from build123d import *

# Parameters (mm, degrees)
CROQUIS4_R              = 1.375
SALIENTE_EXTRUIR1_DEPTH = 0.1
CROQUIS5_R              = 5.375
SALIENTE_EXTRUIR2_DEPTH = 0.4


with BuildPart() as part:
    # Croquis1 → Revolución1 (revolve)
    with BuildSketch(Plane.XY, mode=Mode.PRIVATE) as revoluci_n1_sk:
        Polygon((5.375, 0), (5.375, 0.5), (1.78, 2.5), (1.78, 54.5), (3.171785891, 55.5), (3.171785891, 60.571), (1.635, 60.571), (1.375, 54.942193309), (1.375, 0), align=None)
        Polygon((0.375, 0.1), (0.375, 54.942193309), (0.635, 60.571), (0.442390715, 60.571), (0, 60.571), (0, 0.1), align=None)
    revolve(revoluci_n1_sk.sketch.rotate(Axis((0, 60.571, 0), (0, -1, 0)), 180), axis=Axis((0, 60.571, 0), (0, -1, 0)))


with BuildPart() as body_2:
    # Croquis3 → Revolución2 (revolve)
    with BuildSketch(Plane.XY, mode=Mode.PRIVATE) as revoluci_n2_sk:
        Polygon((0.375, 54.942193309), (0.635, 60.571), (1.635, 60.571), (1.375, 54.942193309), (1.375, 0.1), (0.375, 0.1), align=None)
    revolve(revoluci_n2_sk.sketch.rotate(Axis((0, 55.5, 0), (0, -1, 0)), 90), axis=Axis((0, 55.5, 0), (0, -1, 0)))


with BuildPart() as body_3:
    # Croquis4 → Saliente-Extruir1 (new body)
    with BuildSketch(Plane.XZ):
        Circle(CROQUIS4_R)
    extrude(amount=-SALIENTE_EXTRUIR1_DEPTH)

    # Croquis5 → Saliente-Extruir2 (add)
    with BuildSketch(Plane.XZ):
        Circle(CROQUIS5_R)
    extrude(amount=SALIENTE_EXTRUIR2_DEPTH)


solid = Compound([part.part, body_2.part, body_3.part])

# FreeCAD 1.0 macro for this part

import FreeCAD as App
import Part
import Sketcher
Q = App.Units.Quantity

doc = App.newDocument("Part")
body = doc.addObject("PartDesign::Body", "Body")
body.AllowCompound = True

# Sketch on XY plane
sketch1 = body.newObject("Sketcher::SketchObject", "Sketch")
sketch1.AttachmentSupport = (doc.getObject("XY_Plane"), [""])
sketch1.MapMode = "FlatFace"
sketch1.addGeometry([
    Part.LineSegment(App.Vector(5.375, 0, 0), App.Vector(5.375, 0.5, 0)),  # 0
    Part.LineSegment(App.Vector(5.375, 0.5, 0), App.Vector(1.78, 2.5, 0)),  # 1
    Part.LineSegment(App.Vector(1.78, 2.5, 0), App.Vector(1.78, 54.5, 0)),  # 2
    Part.LineSegment(App.Vector(1.78, 54.5, 0), App.Vector(3.171786, 55.5, 0)),  # 3
    Part.LineSegment(App.Vector(3.171786, 55.5, 0), App.Vector(3.171786, 60.571, 0)),  # 4
    Part.LineSegment(App.Vector(3.171786, 60.571, 0), App.Vector(1.635, 60.571, 0)),  # 5
    Part.LineSegment(App.Vector(1.635, 60.571, 0), App.Vector(1.375, 54.942193, 0)),  # 6
    Part.LineSegment(App.Vector(1.375, 54.942193, 0), App.Vector(1.375, 0, 0)),  # 7
    Part.LineSegment(App.Vector(1.375, 0, 0), App.Vector(5.375, 0, 0)),  # 8
    Part.LineSegment(App.Vector(0.375, 0.1, 0), App.Vector(0.375, 54.942193, 0)),  # 9
    Part.LineSegment(App.Vector(0.375, 54.942193, 0), App.Vector(0.635, 60.571, 0)),  # 10
    Part.LineSegment(App.Vector(0.635, 60.571, 0), App.Vector(0, 60.571, 0)),  # 11
    Part.LineSegment(App.Vector(0, 60.571, 0), App.Vector(0, 0.1, 0)),  # 12
    Part.LineSegment(App.Vector(0, 0.1, 0), App.Vector(0.375, 0.1, 0)),  # 13
], False)
sketch1.addConstraint([
    Sketcher.Constraint("Coincident", 0, 2, 1, 1),
    Sketcher.Constraint("Coincident", 1, 2, 2, 1),
    Sketcher.Constraint("Coincident", 2, 2, 3, 1),
    Sketcher.Constraint("Coincident", 3, 2, 4, 1),
    Sketcher.Constraint("Coincident", 4, 2, 5, 1),
    Sketcher.Constraint("Coincident", 5, 2, 6, 1),
    Sketcher.Constraint("Coincident", 6, 2, 7, 1),
    Sketcher.Constraint("Coincident", 7, 2, 8, 1),
    Sketcher.Constraint("Coincident", 8, 2, 0, 1),
    Sketcher.Constraint("Coincident", 9, 2, 10, 1),
    Sketcher.Constraint("Coincident", 10, 2, 11, 1),
    Sketcher.Constraint("Coincident", 11, 2, 12, 1),
    Sketcher.Constraint("Coincident", 12, 2, 13, 1),
    Sketcher.Constraint("Coincident", 13, 2, 9, 1),
    Sketcher.Constraint("Vertical", 0),
    Sketcher.Constraint("Vertical", 2),
    Sketcher.Constraint("Vertical", 4),
    Sketcher.Constraint("Horizontal", 5),
    Sketcher.Constraint("Vertical", 7),
    Sketcher.Constraint("Horizontal", 8),
    Sketcher.Constraint("Vertical", 9),
    Sketcher.Constraint("Horizontal", 11),
    Sketcher.Constraint("Vertical", 12),
    Sketcher.Constraint("Horizontal", 13),
    Sketcher.Constraint("PointOnObject", 7, 2, -1),
    Sketcher.Constraint("PointOnObject", 11, 2, -2),
    Sketcher.Constraint("Parallel", 6, 10),
    Sketcher.Constraint("Horizontal", 6, 2, 9, 2),
    Sketcher.Constraint("Horizontal", 5, 2, 10, 2),
    Sketcher.Constraint("DistanceX", 8, 1, 8, 2, Q("4 mm")),
    Sketcher.Constraint("DistanceY", 2, 1, 2, 2, Q("52 mm")),
    Sketcher.Constraint("DistanceY", 0, 1, 0, 2, Q("0.5 mm")),
    Sketcher.Constraint("DistanceY", 0, 2, 1, 2, Q("2 mm")),
    Sketcher.Constraint("DistanceY", 2, 2, 3, 2, Q("1 mm")),
    Sketcher.Constraint("DistanceX", 9, 2, 6, 2, Q("1 mm")),
    Sketcher.Constraint("DistanceY", -1, 1, 12, 2, Q("0.1 mm")),
    Sketcher.Constraint("DistanceX", 11, 2, 11, 1, Q("0.635 mm")),
    Sketcher.Constraint("DistanceX", 13, 1, 13, 2, Q("0.375 mm")),
    Sketcher.Constraint("DistanceY", 4, 1, 4, 2, Q("5.071 mm")),
    Sketcher.Constraint("DistanceX", -1, 1, 1, 2, Q("1.78 mm")),
    Sketcher.Constraint("Distance", 6, Q("5.634808 mm")),
    Sketcher.Constraint("DistanceX", 5, 2, 5, 1, Q("1.536786 mm")),
])
revolution = body.newObject("PartDesign::Revolution", "Revolution")
revolution.Profile = sketch1
revolution.ReferenceAxis = (sketch1, ["V_Axis"])
revolution.Angle = 360
body2 = doc.addObject("PartDesign::Body", "Body001")

# Sketch on XY plane
sketch2 = body2.newObject("Sketcher::SketchObject", "Sketch001")
sketch2.AttachmentSupport = (doc.getObject("XY_Plane001"), [""])
sketch2.MapMode = "FlatFace"
sketch2.addGeometry([
    Part.LineSegment(App.Vector(0.635, 60.571, 0), App.Vector(0.375, 54.942193, 0)),  # 0
    Part.LineSegment(App.Vector(0.375, 54.942193, 0), App.Vector(0.375, 0.1, 0)),  # 1
    Part.LineSegment(App.Vector(0.375, 0.1, 0), App.Vector(1.375, 0.1, 0)),  # 2
    Part.LineSegment(App.Vector(1.375, 0.1, 0), App.Vector(1.375, 54.942193, 0)),  # 3
    Part.LineSegment(App.Vector(1.375, 54.942193, 0), App.Vector(1.635, 60.571, 0)),  # 4
    Part.LineSegment(App.Vector(1.635, 60.571, 0), App.Vector(0.635, 60.571, 0)),  # 5
], False)
sketch2.addConstraint([
    Sketcher.Constraint("Coincident", 0, 2, 1, 1),
    Sketcher.Constraint("Coincident", 1, 2, 2, 1),
    Sketcher.Constraint("Coincident", 2, 2, 3, 1),
    Sketcher.Constraint("Coincident", 3, 2, 4, 1),
    Sketcher.Constraint("Coincident", 4, 2, 5, 1),
    Sketcher.Constraint("Coincident", 5, 2, 0, 1),
    Sketcher.Constraint("Vertical", 1),
    Sketcher.Constraint("Horizontal", 2),
    Sketcher.Constraint("Vertical", 3),
    Sketcher.Constraint("Horizontal", 5),
    Sketcher.Constraint("Parallel", 0, 4),
    Sketcher.Constraint("Horizontal", 0, 2, 3, 2),
    Sketcher.Constraint("DistanceX", 2, 1, 2, 2, Q("1 mm")),
    Sketcher.Constraint("DistanceY", -1, 1, 1, 2, Q("0.1 mm")),
    Sketcher.Constraint("DistanceX", 3, 2, 4, 2, Q("0.26 mm")),
    Sketcher.Constraint("DistanceX", -1, 1, 0, 2, Q("0.375 mm")),
    Sketcher.Constraint("DistanceY", -1, 1, 4, 2, Q("60.571 mm")),
    Sketcher.Constraint("Distance", 0, Q("5.634808 mm")),
])
revolution2 = body2.newObject("PartDesign::Revolution", "Revolution001")
revolution2.Profile = sketch2
revolution2.ReferenceAxis = (sketch2, ["V_Axis"])
revolution2.Angle = 360
body3 = doc.addObject("PartDesign::Body", "Body002")

# Sketch on XZ plane
sketch3 = body3.newObject("Sketcher::SketchObject", "Sketch002")
sketch3.AttachmentSupport = (doc.getObject("XZ_Plane002"), [""])
sketch3.MapMode = "FlatFace"
sketch3.addGeometry(Part.Circle(App.Vector(0, 0, 0), App.Vector(0, 0, 1), 1.375), False)
sketch3.addConstraint([
    Sketcher.Constraint("Coincident", 0, 3, -1, 1),
    Sketcher.Constraint("Diameter", 0, Q("2.75 mm")),
])
pad1 = body3.newObject("PartDesign::Pad", "Pad")
pad1.Profile = sketch3
pad1.Length = 0.1
pad1.Reversed = True

# Sketch on XZ plane
sketch4 = body3.newObject("Sketcher::SketchObject", "Sketch003")
sketch4.AttachmentSupport = (doc.getObject("XZ_Plane002"), [""])
sketch4.MapMode = "FlatFace"
sketch4.addGeometry(Part.Circle(App.Vector(0, 0, 0), App.Vector(0, 0, 1), 5.375), False)
sketch4.addConstraint([
    Sketcher.Constraint("Coincident", 0, 3, -1, 1),
    Sketcher.Constraint("Diameter", 0, Q("10.75 mm")),
])
pad2 = body3.newObject("PartDesign::Pad", "Pad001")
pad2.Profile = sketch4
pad2.Length = 0.4

doc.recompute()
